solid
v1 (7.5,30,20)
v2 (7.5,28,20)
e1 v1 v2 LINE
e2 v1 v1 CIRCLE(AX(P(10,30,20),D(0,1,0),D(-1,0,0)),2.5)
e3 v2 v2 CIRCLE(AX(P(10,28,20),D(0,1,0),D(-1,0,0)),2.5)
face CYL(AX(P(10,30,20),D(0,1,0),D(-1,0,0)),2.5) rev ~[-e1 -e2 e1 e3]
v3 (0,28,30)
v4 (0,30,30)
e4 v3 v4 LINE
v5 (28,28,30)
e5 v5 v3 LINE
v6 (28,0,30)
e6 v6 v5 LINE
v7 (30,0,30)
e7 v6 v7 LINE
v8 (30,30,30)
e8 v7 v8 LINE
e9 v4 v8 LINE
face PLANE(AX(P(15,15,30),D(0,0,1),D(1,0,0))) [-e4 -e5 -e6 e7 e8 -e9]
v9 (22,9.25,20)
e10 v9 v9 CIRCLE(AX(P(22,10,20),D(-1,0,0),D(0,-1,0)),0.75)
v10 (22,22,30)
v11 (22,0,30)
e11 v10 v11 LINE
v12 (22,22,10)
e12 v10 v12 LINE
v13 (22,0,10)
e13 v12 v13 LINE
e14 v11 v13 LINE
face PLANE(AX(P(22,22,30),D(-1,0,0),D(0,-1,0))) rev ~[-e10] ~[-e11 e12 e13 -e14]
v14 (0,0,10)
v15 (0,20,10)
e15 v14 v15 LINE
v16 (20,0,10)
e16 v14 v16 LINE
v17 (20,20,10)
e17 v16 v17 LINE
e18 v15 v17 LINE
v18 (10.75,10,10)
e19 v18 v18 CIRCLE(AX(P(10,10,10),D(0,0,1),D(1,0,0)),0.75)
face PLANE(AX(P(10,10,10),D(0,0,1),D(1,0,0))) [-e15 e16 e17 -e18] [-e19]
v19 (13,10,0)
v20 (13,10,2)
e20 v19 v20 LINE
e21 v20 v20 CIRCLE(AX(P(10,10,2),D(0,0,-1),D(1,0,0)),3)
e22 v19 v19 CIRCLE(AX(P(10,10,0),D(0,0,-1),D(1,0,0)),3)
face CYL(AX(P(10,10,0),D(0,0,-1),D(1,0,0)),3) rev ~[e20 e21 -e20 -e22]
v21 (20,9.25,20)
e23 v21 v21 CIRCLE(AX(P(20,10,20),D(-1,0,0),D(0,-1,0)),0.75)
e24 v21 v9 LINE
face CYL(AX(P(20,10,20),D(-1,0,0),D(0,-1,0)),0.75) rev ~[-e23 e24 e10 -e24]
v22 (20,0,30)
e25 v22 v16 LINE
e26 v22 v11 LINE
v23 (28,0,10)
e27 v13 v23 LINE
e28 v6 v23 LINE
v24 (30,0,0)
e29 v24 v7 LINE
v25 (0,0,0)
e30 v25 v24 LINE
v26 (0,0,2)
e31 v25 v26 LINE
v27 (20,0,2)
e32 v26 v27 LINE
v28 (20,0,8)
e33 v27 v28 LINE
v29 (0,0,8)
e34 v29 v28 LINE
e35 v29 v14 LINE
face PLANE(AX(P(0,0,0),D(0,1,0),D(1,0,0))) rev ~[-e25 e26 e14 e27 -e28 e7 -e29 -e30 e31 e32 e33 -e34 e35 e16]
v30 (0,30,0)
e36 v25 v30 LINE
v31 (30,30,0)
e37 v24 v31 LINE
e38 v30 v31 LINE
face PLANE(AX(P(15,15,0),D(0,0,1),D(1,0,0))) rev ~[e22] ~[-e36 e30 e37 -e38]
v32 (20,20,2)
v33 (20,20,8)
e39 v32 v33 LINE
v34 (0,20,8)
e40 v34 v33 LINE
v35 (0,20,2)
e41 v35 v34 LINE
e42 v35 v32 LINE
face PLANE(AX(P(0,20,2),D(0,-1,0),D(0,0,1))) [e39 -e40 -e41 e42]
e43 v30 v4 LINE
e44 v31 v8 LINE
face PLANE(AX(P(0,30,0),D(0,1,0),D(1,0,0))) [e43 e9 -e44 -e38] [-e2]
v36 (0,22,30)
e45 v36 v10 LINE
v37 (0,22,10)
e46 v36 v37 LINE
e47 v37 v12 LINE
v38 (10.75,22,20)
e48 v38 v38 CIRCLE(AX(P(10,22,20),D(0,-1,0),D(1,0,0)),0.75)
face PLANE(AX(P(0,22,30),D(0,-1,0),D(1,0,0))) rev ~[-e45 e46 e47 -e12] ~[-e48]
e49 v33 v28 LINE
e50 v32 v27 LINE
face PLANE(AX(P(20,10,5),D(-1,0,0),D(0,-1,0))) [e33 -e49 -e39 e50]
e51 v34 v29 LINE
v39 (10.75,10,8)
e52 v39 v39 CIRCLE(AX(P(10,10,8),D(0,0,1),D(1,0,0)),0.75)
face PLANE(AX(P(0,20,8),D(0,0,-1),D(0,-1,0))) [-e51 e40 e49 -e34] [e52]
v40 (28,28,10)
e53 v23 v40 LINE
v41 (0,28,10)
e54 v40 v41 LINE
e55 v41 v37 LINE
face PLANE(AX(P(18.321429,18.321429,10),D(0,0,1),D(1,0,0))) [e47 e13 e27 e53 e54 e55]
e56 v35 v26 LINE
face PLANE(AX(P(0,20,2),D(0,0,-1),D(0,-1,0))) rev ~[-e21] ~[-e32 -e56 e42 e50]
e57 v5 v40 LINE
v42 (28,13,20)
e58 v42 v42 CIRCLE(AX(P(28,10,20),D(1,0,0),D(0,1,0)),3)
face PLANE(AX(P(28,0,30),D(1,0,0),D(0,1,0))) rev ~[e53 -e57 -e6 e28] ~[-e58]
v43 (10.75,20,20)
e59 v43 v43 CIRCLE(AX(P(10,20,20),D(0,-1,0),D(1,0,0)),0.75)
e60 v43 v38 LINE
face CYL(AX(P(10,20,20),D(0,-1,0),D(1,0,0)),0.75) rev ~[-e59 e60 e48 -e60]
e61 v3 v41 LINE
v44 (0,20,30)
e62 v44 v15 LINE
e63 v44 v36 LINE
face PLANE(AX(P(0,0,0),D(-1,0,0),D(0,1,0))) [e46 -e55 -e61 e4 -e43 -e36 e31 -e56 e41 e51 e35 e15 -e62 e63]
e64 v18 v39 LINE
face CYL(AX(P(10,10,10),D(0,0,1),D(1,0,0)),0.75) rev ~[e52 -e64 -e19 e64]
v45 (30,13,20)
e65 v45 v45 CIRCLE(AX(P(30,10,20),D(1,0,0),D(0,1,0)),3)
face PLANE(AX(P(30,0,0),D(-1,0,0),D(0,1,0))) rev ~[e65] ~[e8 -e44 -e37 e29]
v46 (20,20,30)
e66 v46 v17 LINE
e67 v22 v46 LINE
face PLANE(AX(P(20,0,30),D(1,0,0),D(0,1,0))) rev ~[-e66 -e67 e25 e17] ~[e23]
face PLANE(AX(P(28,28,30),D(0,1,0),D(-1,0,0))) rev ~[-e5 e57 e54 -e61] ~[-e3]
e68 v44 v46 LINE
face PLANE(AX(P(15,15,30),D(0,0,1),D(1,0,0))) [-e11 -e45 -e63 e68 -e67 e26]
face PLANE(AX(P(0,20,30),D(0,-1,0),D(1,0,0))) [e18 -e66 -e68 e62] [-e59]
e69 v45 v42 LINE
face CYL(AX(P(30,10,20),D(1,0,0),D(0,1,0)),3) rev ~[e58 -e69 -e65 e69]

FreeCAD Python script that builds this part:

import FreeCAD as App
import Part
import Sketcher
from FreeCAD import Vector
Q = App.Units.Quantity

doc = App.newDocument("Part")
body = doc.addObject("PartDesign::Body", "Body")

# Sketch on XY plane
sketch1 = body.newObject("Sketcher::SketchObject", "Sketch")
sketch1.AttachmentSupport = (doc.getObject("XY_Plane"), [""])
sketch1.MapMode = "FlatFace"
sketch1.addGeometry([
    Part.LineSegment(Vector(0, 30, 0), Vector(0, 0, 0)),
    Part.LineSegment(Vector(0, 0, 0), Vector(30, 0, 0)),
    Part.LineSegment(Vector(30, 0, 0), Vector(30, 30, 0)),
    Part.LineSegment(Vector(30, 30, 0), Vector(0, 30, 0)),
], False)
sketch1.addConstraint([
    Sketcher.Constraint("Coincident", 0, 2, 1, 1),
    Sketcher.Constraint("Coincident", 1, 2, 2, 1),
    Sketcher.Constraint("Coincident", 2, 2, 3, 1),
    Sketcher.Constraint("Coincident", 3, 2, 0, 1),
    Sketcher.Constraint("Vertical", 0),
    Sketcher.Constraint("Horizontal", 1),
    Sketcher.Constraint("Vertical", 2),
    Sketcher.Constraint("Horizontal", 3),
    Sketcher.Constraint("Coincident", 0, 2, -1, 1),
    Sketcher.Constraint("Equal", 3, 0),
    Sketcher.Constraint("DistanceX", 1, 1, 1, 2, Q("30 mm")),
])
pad1 = body.newObject("PartDesign::Pad", "Pad")
pad1.Profile = sketch1
pad1.Length = 30

# Sketch on XY plane
sketch2 = body.newObject("Sketcher::SketchObject", "Sketch001")
sketch2.AttachmentSupport = (doc.getObject("XY_Plane"), [""])
sketch2.MapMode = "FlatFace"
sketch2.AttachmentOffset = App.Placement(Vector(0, 0, 30), App.Rotation())
sketch2.addGeometry([
    Part.LineSegment(Vector(0, 20, 0), Vector(0, 0, 0)),
    Part.LineSegment(Vector(0, 0, 0), Vector(20, 0, 0)),
    Part.LineSegment(Vector(20, 0, 0), Vector(20, 20, 0)),
    Part.LineSegment(Vector(20, 20, 0), Vector(0, 20, 0)),
], False)
sketch2.addConstraint([
    Sketcher.Constraint("Coincident", 0, 2, 1, 1),
    Sketcher.Constraint("Coincident", 1, 2, 2, 1),
    Sketcher.Constraint("Coincident", 2, 2, 3, 1),
    Sketcher.Constraint("Coincident", 3, 2, 0, 1),
    Sketcher.Constraint("Vertical", 0),
    Sketcher.Constraint("Horizontal", 1),
    Sketcher.Constraint("Vertical", 2),
    Sketcher.Constraint("Horizontal", 3),
    Sketcher.Constraint("Coincident", 0, 2, -1, 1),
    Sketcher.Constraint("Equal", 3, 0),
    Sketcher.Constraint("DistanceX", 1, 1, 1, 2, Q("20 mm")),
])
pocket1 = body.newObject("PartDesign::Pocket", "Pocket")
pocket1.Profile = sketch2
pocket1.Length = 20

# Sketch on XY plane
sketch3 = body.newObject("Sketcher::SketchObject", "Sketch002")
sketch3.AttachmentSupport = (doc.getObject("XY_Plane"), [""])
sketch3.MapMode = "FlatFace"
sketch3.AttachmentOffset = App.Placement(Vector(0, 0, 30), App.Rotation())
sketch3.addGeometry([
    Part.LineSegment(Vector(28, 28, 0), Vector(0, 28, 0)),  # 0
    Part.LineSegment(Vector(0, 28, 0), Vector(0, 22, 0)),  # 1
    Part.LineSegment(Vector(0, 22, 0), Vector(22, 22, 0)),  # 2
    Part.LineSegment(Vector(22, 22, 0), Vector(22, 0, 0)),  # 3
    Part.LineSegment(Vector(22, 0, 0), Vector(28, 0, 0)),  # 4
    Part.LineSegment(Vector(28, 0, 0), Vector(28, 28, 0)),  # 5
], False)
sketch3.addConstraint([
    Sketcher.Constraint("Coincident", 0, 2, 1, 1),
    Sketcher.Constraint("Coincident", 1, 2, 2, 1),
    Sketcher.Constraint("Coincident", 2, 2, 3, 1),
    Sketcher.Constraint("Coincident", 3, 2, 4, 1),
    Sketcher.Constraint("Coincident", 4, 2, 5, 1),
    Sketcher.Constraint("Coincident", 5, 2, 0, 1),
    Sketcher.Constraint("Horizontal", 0),
    Sketcher.Constraint("Vertical", 1),
    Sketcher.Constraint("Horizontal", 2),
    Sketcher.Constraint("Vertical", 3),
    Sketcher.Constraint("Horizontal", 4),
    Sketcher.Constraint("Vertical", 5),
    Sketcher.Constraint("PointOnObject", 0, 2, -2),
    Sketcher.Constraint("PointOnObject", 3, 2, -1),
    Sketcher.Constraint("Equal", 4, 1),
    Sketcher.Constraint("Equal", 2, 3),
    Sketcher.Constraint("DistanceX", 0, 2, 0, 1, Q("28 mm")),
    Sketcher.Constraint("DistanceX", 2, 1, 2, 2, Q("22 mm")),
])
pocket2 = body.newObject("PartDesign::Pocket", "Pocket001")
pocket2.Profile = sketch3
pocket2.Length = 20

# Sketch on YZ plane
sketch4 = body.newObject("Sketcher::SketchObject", "Sketch003")
sketch4.AttachmentSupport = (doc.getObject("YZ_Plane"), [""])
sketch4.MapMode = "FlatFace"
sketch4.addGeometry([
    Part.LineSegment(Vector(20, 8, 0), Vector(20, 2, 0)),
    Part.LineSegment(Vector(20, 2, 0), Vector(0, 2, 0)),
    Part.LineSegment(Vector(0, 2, 0), Vector(0, 8, 0)),
    Part.LineSegment(Vector(0, 8, 0), Vector(20, 8, 0)),
], False)
sketch4.addConstraint([
    Sketcher.Constraint("Coincident", 0, 2, 1, 1),
    Sketcher.Constraint("Coincident", 1, 2, 2, 1),
    Sketcher.Constraint("Coincident", 2, 2, 3, 1),
    Sketcher.Constraint("Coincident", 3, 2, 0, 1),
    Sketcher.Constraint("Vertical", 0),
    Sketcher.Constraint("Horizontal", 1),
    Sketcher.Constraint("Vertical", 2),
    Sketcher.Constraint("Horizontal", 3),
    Sketcher.Constraint("PointOnObject", 1, 2, -2),
    Sketcher.Constraint("DistanceX", 1, 2, 1, 1, Q("20 mm")),
    Sketcher.Constraint("DistanceY", 0, 2, 0, 1, Q("6 mm")),
    Sketcher.Constraint("DistanceY", -1, 1, 0, 2, Q("2 mm")),
])
pocket3 = body.newObject("PartDesign::Pocket", "Pocket002")
pocket3.Profile = sketch4
pocket3.Length = 20
pocket3.Reversed = True

# Sketch on XZ plane
sketch5 = body.newObject("Sketcher::SketchObject", "Sketch004")
sketch5.AttachmentSupport = (doc.getObject("XZ_Plane"), [""])
sketch5.MapMode = "FlatFace"
sketch5.AttachmentOffset = App.Placement(Vector(0, 0, -30), App.Rotation())
sketch5.addGeometry(Part.Circle(Vector(10, 20, 0), Vector(0, 0, 1), 2.5), False)
sketch5.addConstraint([
    Sketcher.Constraint("Diameter", 0, Q("5 mm")),
    Sketcher.Constraint("DistanceX", -1, 1, 0, 3, Q("10 mm")),
    Sketcher.Constraint("DistanceY", -1, 1, 0, 3, Q("20 mm")),
])
pocket4 = body.newObject("PartDesign::Pocket", "Pocket003")
pocket4.Profile = sketch5
pocket4.Length = 2
pocket4.Reversed = True

# Sketch on XZ plane
sketch6 = body.newObject("Sketcher::SketchObject", "Sketch005")
sketch6.AttachmentSupport = (doc.getObject("XZ_Plane"), [""])
sketch6.MapMode = "FlatFace"
sketch6.AttachmentOffset = App.Placement(Vector(0, 0, -20), App.Rotation())
sketch6.addGeometry(Part.Circle(Vector(10, 20, 0), Vector(0, 0, 1), 0.8), False)
sketch6.addConstraint([
    Sketcher.Constraint("Diameter", 0, Q("1.5 mm")),
    Sketcher.Constraint("DistanceX", -1, 1, 0, 3, Q("10 mm")),
    Sketcher.Constraint("DistanceY", -1, 1, 0, 3, Q("20 mm")),
])
pocket5 = body.newObject("PartDesign::Pocket", "Pocket004")
pocket5.Profile = sketch6
pocket5.Length = 25

# Sketch on YZ plane
sketch7 = body.newObject("Sketcher::SketchObject", "Sketch006")
sketch7.AttachmentSupport = (doc.getObject("YZ_Plane"), [""])
sketch7.MapMode = "FlatFace"
sketch7.AttachmentOffset = App.Placement(Vector(0, 0, 30), App.Rotation())
sketch7.addGeometry(Part.Circle(Vector(10, 20, 0), Vector(0, 0, 1), 3), False)
sketch7.addConstraint([
    Sketcher.Constraint("Diameter", 0, Q("6 mm")),
    Sketcher.Constraint("DistanceX", -1, 1, 0, 3, Q("10 mm")),
    Sketcher.Constraint("DistanceY", -1, 1, 0, 3, Q("20 mm")),
])
pocket6 = body.newObject("PartDesign::Pocket", "Pocket005")
pocket6.Profile = sketch7
pocket6.Length = 2

# Sketch on YZ plane
sketch8 = body.newObject("Sketcher::SketchObject", "Sketch007")
sketch8.AttachmentSupport = (doc.getObject("YZ_Plane"), [""])
sketch8.MapMode = "FlatFace"
sketch8.AttachmentOffset = App.Placement(Vector(0, 0, 20), App.Rotation())
sketch8.addGeometry(Part.Circle(Vector(10, 20, 0), Vector(0, 0, 1), 0.8), False)
sketch8.addConstraint([
    Sketcher.Constraint("Diameter", 0, Q("1.5 mm")),
    Sketcher.Constraint("DistanceX", -1, 1, 0, 3, Q("10 mm")),
    Sketcher.Constraint("DistanceY", -1, 1, 0, 3, Q("20 mm")),
])
pocket7 = body.newObject("PartDesign::Pocket", "Pocket006")
pocket7.Profile = sketch8
pocket7.Type = "ThroughAll"
pocket7.Reversed = True

# Sketch on XY plane
sketch9 = body.newObject("Sketcher::SketchObject", "Sketch008")
sketch9.AttachmentSupport = (doc.getObject("XY_Plane"), [""])
sketch9.MapMode = "FlatFace"
sketch9.AttachmentOffset = App.Placement(Vector(0, 0, 10), App.Rotation())
sketch9.addGeometry(Part.Circle(Vector(10, 10, 0), Vector(0, 0, 1), 0.8), False)
sketch9.addConstraint([
    Sketcher.Constraint("Diameter", 0, Q("1.5 mm")),
    Sketcher.Constraint("DistanceX", -1, 1, 0, 3, Q("10 mm")),
    Sketcher.Constraint("DistanceY", -1, 1, 0, 3, Q("10 mm")),
])
pocket8 = body.newObject("PartDesign::Pocket", "Pocket007")
pocket8.Profile = sketch9
pocket8.Length = 2

# Sketch on XY plane
sketch10 = body.newObject("Sketcher::SketchObject", "Sketch009")
sketch10.AttachmentSupport = (doc.getObject("XY_Plane"), [""])
sketch10.MapMode = "FlatFace"
sketch10.addGeometry(Part.Circle(Vector(10, 10, 0), Vector(0, 0, 1), 3), False)
sketch10.addConstraint([
    Sketcher.Constraint("Diameter", 0, Q("6 mm")),
    Sketcher.Constraint("DistanceX", -1, 1, 0, 3, Q("10 mm")),
    Sketcher.Constraint("DistanceY", -1, 1, 0, 3, Q("10 mm")),
])
pocket9 = body.newObject("PartDesign::Pocket", "Pocket008")
pocket9.Profile = sketch10
pocket9.Length = 2
pocket9.Reversed = True

doc.recompute()
